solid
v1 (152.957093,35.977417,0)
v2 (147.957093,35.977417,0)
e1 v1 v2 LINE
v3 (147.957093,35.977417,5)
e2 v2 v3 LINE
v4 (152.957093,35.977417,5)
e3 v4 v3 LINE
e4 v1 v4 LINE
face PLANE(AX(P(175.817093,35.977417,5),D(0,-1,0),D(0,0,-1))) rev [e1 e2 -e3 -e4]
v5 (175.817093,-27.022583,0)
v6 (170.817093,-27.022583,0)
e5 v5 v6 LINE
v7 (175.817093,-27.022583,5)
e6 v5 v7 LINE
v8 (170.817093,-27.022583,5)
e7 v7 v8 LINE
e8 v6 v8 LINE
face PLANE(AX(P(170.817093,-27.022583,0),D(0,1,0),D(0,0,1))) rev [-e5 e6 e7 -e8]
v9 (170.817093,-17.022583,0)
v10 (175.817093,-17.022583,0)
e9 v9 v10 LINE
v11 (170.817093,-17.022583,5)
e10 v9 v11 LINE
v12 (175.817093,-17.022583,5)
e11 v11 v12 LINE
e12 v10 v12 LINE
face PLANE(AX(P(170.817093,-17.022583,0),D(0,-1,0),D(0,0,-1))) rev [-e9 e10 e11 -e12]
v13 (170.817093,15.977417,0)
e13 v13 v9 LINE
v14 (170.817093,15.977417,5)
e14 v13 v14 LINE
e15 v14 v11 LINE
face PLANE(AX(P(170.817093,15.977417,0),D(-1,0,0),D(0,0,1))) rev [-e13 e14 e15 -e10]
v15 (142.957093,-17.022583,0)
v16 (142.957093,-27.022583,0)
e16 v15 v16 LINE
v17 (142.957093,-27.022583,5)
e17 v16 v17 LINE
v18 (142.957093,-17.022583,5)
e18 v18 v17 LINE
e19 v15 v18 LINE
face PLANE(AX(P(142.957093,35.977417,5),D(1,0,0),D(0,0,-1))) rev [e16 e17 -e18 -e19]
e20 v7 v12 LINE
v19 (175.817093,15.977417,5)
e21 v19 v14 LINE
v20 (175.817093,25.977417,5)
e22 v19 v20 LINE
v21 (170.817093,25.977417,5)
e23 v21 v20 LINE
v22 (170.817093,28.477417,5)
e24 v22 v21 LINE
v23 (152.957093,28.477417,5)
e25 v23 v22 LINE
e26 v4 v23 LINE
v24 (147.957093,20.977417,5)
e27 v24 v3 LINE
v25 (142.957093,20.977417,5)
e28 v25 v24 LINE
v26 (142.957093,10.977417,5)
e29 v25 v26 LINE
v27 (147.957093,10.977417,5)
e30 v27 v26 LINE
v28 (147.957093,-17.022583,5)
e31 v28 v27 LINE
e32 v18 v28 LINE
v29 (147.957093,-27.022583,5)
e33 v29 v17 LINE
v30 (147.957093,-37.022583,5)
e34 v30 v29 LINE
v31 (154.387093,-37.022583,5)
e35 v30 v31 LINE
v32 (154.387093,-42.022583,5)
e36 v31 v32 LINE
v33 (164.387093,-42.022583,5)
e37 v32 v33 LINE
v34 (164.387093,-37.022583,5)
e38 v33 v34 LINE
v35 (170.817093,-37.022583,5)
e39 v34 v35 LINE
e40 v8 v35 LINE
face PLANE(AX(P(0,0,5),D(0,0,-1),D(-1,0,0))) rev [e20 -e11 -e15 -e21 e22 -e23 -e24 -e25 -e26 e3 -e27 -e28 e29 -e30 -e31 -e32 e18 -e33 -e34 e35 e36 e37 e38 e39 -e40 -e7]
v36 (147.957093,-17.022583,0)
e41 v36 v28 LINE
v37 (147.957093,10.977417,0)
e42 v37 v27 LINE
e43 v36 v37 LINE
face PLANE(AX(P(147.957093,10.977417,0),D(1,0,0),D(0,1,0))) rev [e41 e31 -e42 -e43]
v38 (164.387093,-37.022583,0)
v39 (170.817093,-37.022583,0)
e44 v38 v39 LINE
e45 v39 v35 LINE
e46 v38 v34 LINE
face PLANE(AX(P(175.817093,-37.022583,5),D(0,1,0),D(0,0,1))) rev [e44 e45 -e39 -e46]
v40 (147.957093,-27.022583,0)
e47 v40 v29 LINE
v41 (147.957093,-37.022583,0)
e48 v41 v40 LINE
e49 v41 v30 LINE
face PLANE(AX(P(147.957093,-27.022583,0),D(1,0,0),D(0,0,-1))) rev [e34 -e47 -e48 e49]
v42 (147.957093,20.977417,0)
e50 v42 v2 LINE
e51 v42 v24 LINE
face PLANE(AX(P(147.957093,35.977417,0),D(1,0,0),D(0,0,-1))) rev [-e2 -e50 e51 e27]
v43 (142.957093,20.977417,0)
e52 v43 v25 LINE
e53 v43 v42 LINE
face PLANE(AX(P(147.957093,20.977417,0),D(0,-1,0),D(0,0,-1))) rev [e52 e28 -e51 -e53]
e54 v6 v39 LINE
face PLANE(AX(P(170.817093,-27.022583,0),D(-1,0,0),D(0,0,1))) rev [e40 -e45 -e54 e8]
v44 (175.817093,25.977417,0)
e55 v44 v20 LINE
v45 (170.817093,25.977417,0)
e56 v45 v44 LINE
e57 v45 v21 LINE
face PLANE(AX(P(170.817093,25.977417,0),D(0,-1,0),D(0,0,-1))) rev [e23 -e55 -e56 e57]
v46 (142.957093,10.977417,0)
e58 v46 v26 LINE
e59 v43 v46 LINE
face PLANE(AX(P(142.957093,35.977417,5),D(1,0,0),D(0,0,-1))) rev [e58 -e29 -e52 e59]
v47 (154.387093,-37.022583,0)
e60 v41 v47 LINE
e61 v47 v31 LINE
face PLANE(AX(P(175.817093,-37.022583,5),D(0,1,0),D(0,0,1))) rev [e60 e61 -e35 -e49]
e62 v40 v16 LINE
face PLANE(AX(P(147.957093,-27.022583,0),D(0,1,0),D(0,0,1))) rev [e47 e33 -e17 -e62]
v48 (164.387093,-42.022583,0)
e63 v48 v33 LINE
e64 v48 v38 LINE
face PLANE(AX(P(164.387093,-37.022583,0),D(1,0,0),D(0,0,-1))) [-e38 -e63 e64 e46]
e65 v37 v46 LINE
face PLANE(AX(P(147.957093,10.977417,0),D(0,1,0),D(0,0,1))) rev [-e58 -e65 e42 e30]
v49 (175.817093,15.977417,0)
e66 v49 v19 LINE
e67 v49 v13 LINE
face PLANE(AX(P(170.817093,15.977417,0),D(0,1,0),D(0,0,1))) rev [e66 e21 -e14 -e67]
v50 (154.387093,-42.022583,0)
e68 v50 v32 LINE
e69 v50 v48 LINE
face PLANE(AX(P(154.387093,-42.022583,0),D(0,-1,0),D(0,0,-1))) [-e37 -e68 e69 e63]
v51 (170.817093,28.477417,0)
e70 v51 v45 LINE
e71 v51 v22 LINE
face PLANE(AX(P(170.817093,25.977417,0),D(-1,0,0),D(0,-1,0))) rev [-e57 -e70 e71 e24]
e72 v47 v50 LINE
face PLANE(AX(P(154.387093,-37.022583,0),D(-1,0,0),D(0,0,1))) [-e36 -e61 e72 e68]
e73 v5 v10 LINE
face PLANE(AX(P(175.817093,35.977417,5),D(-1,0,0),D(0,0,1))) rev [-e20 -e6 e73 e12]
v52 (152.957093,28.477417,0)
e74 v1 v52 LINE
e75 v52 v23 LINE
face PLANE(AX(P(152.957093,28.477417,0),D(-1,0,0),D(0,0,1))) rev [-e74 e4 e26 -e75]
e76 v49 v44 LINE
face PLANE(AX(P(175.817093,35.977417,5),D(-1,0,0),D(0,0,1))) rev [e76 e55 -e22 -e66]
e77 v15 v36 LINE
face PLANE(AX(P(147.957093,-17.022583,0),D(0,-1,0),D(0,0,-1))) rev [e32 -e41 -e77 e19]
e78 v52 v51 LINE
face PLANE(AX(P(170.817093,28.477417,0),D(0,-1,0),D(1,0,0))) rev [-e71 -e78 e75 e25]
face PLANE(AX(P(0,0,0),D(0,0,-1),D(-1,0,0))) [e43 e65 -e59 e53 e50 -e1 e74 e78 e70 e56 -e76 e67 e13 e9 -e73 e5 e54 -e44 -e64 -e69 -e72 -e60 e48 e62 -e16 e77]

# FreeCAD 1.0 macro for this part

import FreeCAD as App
import Part
import Sketcher
Q = App.Units.Quantity


def add_polygon(sketch, points):
    """Adds a closed chain of lines whose ends are joined by coincident constraints."""
    first, n = sketch.GeometryCount, len(points)
    for a, b in zip(points, points[1:] + points[:1]):
        sketch.addGeometry(Part.LineSegment(App.Vector(*a, 0), App.Vector(*b, 0)), False)
    for i in range(n):
        sketch.addConstraint(Sketcher.Constraint("Coincident", first + i, 2, first + (i + 1) % n, 1))

doc = App.newDocument("Part")
body = doc.addObject("PartDesign::Body", "Body")

sketch1 = body.newObject("Sketcher::SketchObject", "Sketch")
sketch1.AttachmentSupport = (doc.getObject("XY_Plane"), [""])
sketch1.MapMode = "FlatFace"
add_polygon(sketch1, [(143, 36), (143, -37), (176, -37), (176, 36)])
sketch1.addConstraint(Sketcher.Constraint("Vertical", 0))
sketch1.addConstraint(Sketcher.Constraint("Horizontal", 1))
sketch1.addConstraint(Sketcher.Constraint("Vertical", 2))
sketch1.addConstraint(Sketcher.Constraint("Horizontal", 3))
sketch1.addConstraint(Sketcher.Constraint("DistanceY", 0, 2, 0, 1, Q("73 mm")))
sketch1.addConstraint(Sketcher.Constraint("DistanceX", 1, 1, 1, 2, Q("32.86 mm")))
sketch1.addConstraint(Sketcher.Constraint("DistanceX", -1, 1, 0, 2, Q("142.957093 mm")))
sketch1.addConstraint(Sketcher.Constraint("DistanceY", 0, 2, -1, 1, Q("37.022583 mm")))
pad1 = body.newObject("PartDesign::Pad", "Pad")
pad1.Profile = sketch1
pad1.Length = 5

sketch2 = body.newObject("Sketcher::SketchObject", "Sketch001")
sketch2.AttachmentSupport = (doc.getObject("XY_Plane"), [""])
sketch2.MapMode = "FlatFace"
sketch2.AttachmentOffset = App.Placement(App.Vector(0, 0, 5), App.Rotation())
add_polygon(sketch2, [(170.8, 28.5), (170.8, 26), (175.8, 26), (175.8, 36), (153, 36), (153, 28.5)])
add_polygon(sketch2, [(170.8, 16), (170.8, -17), (175.8, -17), (175.8, 16)])
add_polygon(sketch2, [(143, 36), (143, 21), (148, 21), (148, 36)])
add_polygon(sketch2, [(170.8, -27), (170.8, -37), (175.8, -37), (175.8, -27)])
add_polygon(sketch2, [(143, -27), (143, -37), (148, -37), (148, -27)])
add_polygon(sketch2, [(143, 11), (143, -17), (148, -17), (148, 11)])
sketch2.addConstraint(Sketcher.Constraint("Vertical", 0))
sketch2.addConstraint(Sketcher.Constraint("Horizontal", 1))
sketch2.addConstraint(Sketcher.Constraint("Vertical", 2))
sketch2.addConstraint(Sketcher.Constraint("Horizontal", 3))
sketch2.addConstraint(Sketcher.Constraint("Vertical", 4))
sketch2.addConstraint(Sketcher.Constraint("Horizontal", 5))
sketch2.addConstraint(Sketcher.Constraint("Vertical", 6))
sketch2.addConstraint(Sketcher.Constraint("Horizontal", 7))
sketch2.addConstraint(Sketcher.Constraint("Vertical", 8))
sketch2.addConstraint(Sketcher.Constraint("Horizontal", 9))
sketch2.addConstraint(Sketcher.Constraint("Vertical", 10))
sketch2.addConstraint(Sketcher.Constraint("Horizontal", 11))
sketch2.addConstraint(Sketcher.Constraint("Vertical", 12))
sketch2.addConstraint(Sketcher.Constraint("Horizontal", 13))
sketch2.addConstraint(Sketcher.Constraint("Vertical", 14))
sketch2.addConstraint(Sketcher.Constraint("Horizontal", 15))
sketch2.addConstraint(Sketcher.Constraint("Vertical", 16))
sketch2.addConstraint(Sketcher.Constraint("Horizontal", 17))
sketch2.addConstraint(Sketcher.Constraint("Vertical", 18))
sketch2.addConstraint(Sketcher.Constraint("Horizontal", 19))
sketch2.addConstraint(Sketcher.Constraint("Vertical", 20))
sketch2.addConstraint(Sketcher.Constraint("Horizontal", 21))
sketch2.addConstraint(Sketcher.Constraint("Vertical", 22))
sketch2.addConstraint(Sketcher.Constraint("Horizontal", 23))
sketch2.addConstraint(Sketcher.Constraint("Vertical", 24))
sketch2.addConstraint(Sketcher.Constraint("Horizontal", 25))
sketch2.addConstraint(Sketcher.Constraint("Horizontal", 3, 2, 12, 2))
sketch2.addConstraint(Sketcher.Constraint("Horizontal", 15, 2, 18, 2))
sketch2.addConstraint(Sketcher.Constraint("Horizontal", 17, 2, 20, 2))
sketch2.addConstraint(Sketcher.Constraint("Horizontal", 7, 2, 22, 2))
sketch2.addConstraint(Sketcher.Constraint("Vertical", 5, 2, 6, 2))
sketch2.addConstraint(Sketcher.Constraint("Vertical", 2, 2, 7, 2))
sketch2.addConstraint(Sketcher.Constraint("Vertical", 9, 2, 14, 2))
sketch2.addConstraint(Sketcher.Constraint("Vertical", 8, 2, 15, 2))
sketch2.addConstraint(Sketcher.Constraint("Vertical", 13, 2, 18, 2))
sketch2.addConstraint(Sketcher.Constraint("Vertical", 12, 2, 19, 2))
sketch2.addConstraint(Sketcher.Constraint("Vertical", 21, 2, 22, 2))
sketch2.addConstraint(Sketcher.Constraint("Vertical", 20, 2, 23, 2))
sketch2.addConstraint(Sketcher.Constraint("Equal", 9, 11))
sketch2.addConstraint(Sketcher.Constraint("Equal", 2, 14))
sketch2.addConstraint(Sketcher.Constraint("DistanceX", 1, 1, 1, 2, Q("5 mm")))
sketch2.addConstraint(Sketcher.Constraint("DistanceY", 2, 1, 2, 2, Q("10 mm")))
sketch2.addConstraint(Sketcher.Constraint("DistanceY", 6, 2, 6, 1, Q("33 mm")))
sketch2.addConstraint(Sketcher.Constraint("DistanceY", 10, 2, 10, 1, Q("15 mm")))
sketch2.addConstraint(Sketcher.Constraint("DistanceY", 22, 2, 22, 1, Q("28 mm")))
sketch2.addConstraint(Sketcher.Constraint("DistanceY", 0, 2, 0, 1, Q("2.5 mm")))
sketch2.addConstraint(Sketcher.Constraint("DistanceY", 6, 2, 0, 2, Q("43 mm")))
sketch2.addConstraint(Sketcher.Constraint("DistanceX", 10, 2, 4, 2, Q("10 mm")))
sketch2.addConstraint(Sketcher.Constraint("DistanceY", 14, 2, 6, 2, Q("20 mm")))
sketch2.addConstraint(Sketcher.Constraint("DistanceX", 3, 2, 3, 1, Q("22.86 mm")))
sketch2.addConstraint(Sketcher.Constraint("DistanceX", -1, 1, 0, 2, Q("170.817093 mm")))
sketch2.addConstraint(Sketcher.Constraint("DistanceY", -1, 1, 0, 2, Q("25.977417 mm")))
pocket1 = body.newObject("PartDesign::Pocket", "Pocket")
pocket1.Profile = sketch2
pocket1.Length = 5

sketch3 = body.newObject("Sketcher::SketchObject", "Sketch002")
sketch3.AttachmentSupport = (doc.getObject("XY_Plane"), [""])
sketch3.MapMode = "FlatFace"
sketch3.AttachmentOffset = App.Placement(App.Vector(0, 0, 5), App.Rotation())
add_polygon(sketch3, [(154, -37), (154, -42), (164, -42), (164, -37)])
sketch3.addConstraint(Sketcher.Constraint("Vertical", 0))
sketch3.addConstraint(Sketcher.Constraint("Horizontal", 1))
sketch3.addConstraint(Sketcher.Constraint("Vertical", 2))
sketch3.addConstraint(Sketcher.Constraint("Horizontal", 3))
sketch3.addConstraint(Sketcher.Constraint("DistanceX", 1, 1, 1, 2, Q("10 mm")))
sketch3.addConstraint(Sketcher.Constraint("DistanceY", 0, 2, 0, 1, Q("5 mm")))
sketch3.addConstraint(Sketcher.Constraint("DistanceX", -1, 1, 0, 2, Q("154.387093 mm")))
sketch3.addConstraint(Sketcher.Constraint("DistanceY", 0, 2, -1, 1, Q("42.022583 mm")))
pad2 = body.newObject("PartDesign::Pad", "Pad001")
pad2.Profile = sketch3
pad2.Length = 5
pad2.Reversed = True

doc.recompute()
